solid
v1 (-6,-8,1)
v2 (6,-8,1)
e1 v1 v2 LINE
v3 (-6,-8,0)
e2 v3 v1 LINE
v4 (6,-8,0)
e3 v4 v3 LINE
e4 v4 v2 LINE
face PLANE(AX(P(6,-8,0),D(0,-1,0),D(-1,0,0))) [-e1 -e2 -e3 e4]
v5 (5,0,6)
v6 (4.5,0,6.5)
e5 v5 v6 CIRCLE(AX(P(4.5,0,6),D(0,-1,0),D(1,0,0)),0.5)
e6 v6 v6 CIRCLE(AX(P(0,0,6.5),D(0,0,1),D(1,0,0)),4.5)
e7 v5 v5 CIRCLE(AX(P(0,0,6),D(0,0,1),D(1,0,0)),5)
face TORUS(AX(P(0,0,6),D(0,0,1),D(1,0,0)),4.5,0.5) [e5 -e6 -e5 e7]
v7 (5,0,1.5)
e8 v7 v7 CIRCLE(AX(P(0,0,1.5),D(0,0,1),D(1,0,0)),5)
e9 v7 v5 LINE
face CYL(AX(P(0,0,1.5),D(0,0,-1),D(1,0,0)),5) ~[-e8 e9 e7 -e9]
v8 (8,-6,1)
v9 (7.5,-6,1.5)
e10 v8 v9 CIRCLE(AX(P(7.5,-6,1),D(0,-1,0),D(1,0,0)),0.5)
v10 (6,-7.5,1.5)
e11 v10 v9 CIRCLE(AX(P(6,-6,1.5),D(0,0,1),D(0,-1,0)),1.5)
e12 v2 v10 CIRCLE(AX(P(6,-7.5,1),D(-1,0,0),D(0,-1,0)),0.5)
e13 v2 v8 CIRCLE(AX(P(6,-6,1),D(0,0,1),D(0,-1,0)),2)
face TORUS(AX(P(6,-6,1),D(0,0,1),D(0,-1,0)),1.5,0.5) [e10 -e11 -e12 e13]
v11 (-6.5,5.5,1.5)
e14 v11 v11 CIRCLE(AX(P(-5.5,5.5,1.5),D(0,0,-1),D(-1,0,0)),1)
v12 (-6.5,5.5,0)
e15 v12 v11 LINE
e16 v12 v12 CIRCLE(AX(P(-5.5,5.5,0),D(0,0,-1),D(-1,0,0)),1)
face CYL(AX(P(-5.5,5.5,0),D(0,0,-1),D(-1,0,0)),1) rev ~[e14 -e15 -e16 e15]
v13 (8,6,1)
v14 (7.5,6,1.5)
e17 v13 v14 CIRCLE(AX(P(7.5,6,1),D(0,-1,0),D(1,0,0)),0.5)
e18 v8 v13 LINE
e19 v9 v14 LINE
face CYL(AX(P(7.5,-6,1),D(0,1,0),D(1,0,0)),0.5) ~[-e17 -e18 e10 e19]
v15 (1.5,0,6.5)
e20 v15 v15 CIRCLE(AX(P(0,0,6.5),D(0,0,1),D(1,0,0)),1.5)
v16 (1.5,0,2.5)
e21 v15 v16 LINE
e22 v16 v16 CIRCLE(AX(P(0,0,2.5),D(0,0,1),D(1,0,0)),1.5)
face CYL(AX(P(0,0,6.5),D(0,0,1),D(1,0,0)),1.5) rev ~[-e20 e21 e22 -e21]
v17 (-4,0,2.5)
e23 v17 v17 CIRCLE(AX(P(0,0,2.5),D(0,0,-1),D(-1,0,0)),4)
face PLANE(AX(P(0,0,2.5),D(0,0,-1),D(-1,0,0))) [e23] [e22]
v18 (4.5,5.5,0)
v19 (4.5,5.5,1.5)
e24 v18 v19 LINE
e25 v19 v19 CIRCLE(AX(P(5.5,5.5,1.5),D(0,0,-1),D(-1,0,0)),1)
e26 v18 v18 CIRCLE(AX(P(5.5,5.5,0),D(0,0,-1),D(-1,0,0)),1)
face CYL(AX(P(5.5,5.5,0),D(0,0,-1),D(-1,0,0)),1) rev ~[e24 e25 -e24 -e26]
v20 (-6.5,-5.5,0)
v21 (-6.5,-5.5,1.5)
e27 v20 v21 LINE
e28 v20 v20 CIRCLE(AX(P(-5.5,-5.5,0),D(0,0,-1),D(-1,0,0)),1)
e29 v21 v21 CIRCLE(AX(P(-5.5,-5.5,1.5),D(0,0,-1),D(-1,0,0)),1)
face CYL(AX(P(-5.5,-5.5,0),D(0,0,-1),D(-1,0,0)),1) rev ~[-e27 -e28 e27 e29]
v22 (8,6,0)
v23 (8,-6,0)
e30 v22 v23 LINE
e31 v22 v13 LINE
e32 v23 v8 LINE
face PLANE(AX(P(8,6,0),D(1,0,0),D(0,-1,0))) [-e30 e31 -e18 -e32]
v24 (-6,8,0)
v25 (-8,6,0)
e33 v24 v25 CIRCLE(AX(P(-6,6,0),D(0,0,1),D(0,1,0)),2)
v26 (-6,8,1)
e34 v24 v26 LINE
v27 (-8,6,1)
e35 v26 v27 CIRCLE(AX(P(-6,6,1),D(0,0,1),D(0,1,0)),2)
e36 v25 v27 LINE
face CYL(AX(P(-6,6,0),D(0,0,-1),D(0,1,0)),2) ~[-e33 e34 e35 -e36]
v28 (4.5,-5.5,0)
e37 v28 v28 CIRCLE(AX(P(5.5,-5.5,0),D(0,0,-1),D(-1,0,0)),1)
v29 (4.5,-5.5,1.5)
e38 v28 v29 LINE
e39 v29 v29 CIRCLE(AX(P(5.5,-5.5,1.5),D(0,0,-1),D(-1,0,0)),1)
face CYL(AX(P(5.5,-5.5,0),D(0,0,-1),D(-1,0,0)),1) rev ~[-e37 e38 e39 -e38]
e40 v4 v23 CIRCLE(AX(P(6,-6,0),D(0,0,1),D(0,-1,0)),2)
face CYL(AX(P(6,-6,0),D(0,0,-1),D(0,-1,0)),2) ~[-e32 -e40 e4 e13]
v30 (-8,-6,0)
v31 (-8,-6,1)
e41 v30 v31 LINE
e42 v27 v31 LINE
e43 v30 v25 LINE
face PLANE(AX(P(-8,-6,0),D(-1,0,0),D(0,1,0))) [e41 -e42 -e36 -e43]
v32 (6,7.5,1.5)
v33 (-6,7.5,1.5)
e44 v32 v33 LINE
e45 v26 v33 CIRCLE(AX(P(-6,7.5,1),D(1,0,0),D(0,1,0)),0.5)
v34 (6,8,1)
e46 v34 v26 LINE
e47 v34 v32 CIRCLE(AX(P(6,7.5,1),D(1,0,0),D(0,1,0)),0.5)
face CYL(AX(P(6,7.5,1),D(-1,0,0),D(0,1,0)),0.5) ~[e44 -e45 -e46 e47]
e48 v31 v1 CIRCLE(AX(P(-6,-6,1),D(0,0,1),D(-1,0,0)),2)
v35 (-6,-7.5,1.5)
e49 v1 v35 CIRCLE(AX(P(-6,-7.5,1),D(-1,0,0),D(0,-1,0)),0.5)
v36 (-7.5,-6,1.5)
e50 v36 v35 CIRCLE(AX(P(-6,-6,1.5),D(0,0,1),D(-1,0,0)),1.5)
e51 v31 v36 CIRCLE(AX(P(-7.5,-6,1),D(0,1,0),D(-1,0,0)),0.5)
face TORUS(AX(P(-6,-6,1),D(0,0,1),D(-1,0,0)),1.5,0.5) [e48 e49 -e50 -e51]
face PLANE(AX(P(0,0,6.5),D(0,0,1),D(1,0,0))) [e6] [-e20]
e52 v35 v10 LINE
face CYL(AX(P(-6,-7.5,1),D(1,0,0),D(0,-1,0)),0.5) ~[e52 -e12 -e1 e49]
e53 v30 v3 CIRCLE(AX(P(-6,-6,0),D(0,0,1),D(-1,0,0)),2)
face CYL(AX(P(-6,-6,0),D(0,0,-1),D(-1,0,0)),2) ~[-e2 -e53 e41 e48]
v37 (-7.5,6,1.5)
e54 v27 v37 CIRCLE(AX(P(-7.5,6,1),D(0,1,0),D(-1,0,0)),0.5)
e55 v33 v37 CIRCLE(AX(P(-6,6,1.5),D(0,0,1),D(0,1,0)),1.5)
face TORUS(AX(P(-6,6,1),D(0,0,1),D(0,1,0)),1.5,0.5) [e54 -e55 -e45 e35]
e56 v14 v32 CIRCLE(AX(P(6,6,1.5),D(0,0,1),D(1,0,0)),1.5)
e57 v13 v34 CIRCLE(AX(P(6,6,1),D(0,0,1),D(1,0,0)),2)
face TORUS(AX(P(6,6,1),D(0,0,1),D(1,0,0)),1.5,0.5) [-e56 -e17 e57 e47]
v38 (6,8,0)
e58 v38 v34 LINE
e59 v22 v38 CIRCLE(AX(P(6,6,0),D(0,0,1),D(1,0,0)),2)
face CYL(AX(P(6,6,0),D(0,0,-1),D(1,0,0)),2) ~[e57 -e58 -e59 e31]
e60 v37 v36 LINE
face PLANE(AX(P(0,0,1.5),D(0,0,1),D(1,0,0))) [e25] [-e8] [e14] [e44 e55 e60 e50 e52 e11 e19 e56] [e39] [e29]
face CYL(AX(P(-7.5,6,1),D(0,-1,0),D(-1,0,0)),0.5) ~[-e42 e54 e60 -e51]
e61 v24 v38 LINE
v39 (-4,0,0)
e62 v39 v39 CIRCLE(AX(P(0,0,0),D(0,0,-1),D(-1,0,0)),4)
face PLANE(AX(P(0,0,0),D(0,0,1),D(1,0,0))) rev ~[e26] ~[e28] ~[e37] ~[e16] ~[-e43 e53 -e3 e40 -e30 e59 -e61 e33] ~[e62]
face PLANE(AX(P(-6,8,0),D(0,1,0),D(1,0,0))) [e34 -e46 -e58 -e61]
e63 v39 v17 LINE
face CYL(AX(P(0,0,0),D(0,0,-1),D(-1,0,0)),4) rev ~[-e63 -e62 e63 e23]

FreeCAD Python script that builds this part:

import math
import FreeCAD as App
import Part
import Sketcher


def edges_at(feature, points):
    """Names of the edges that pass closest to the given points."""
    edges = feature.Shape.Edges
    near = lambda p: min(range(len(edges)), key=lambda i: edges[i].distToShape(Part.Vertex(*p))[0])
    return sorted({f"Edge{near(p) + 1}" for p in points})

doc = App.newDocument("Part")
body = doc.addObject("PartDesign::Body", "Body")

# Sketch on XY plane
sketch1 = doc.addObject("Sketcher::SketchObject", "Sketch")
body.addObject(sketch1)
sketch1.AttachmentSupport = (doc.XY_Plane, [""])
sketch1.MapMode = "FlatFace"
sketch1.addGeometry([
    Part.LineSegment(App.Vector(6, 8, 0), App.Vector(-6, 8, 0)),  # 0
    Part.ArcOfCircle(Part.Circle(App.Vector(-6, 6, 0), App.Vector(0, 0, 1), 2), math.radians(90), math.radians(180)),  # 1
    Part.LineSegment(App.Vector(-8, 6, 0), App.Vector(-8, -6, 0)),  # 2
    Part.ArcOfCircle(Part.Circle(App.Vector(-6, -6, 0), App.Vector(0, 0, 1), 2), math.radians(180), math.radians(270)),  # 3
    Part.LineSegment(App.Vector(-6, -8, 0), App.Vector(6, -8, 0)),  # 4
    Part.ArcOfCircle(Part.Circle(App.Vector(6, -6, 0), App.Vector(0, 0, 1), 2), math.radians(-90), math.radians(0)),  # 5
    Part.LineSegment(App.Vector(8, -6, 0), App.Vector(8, 6, 0)),  # 6
    Part.ArcOfCircle(Part.Circle(App.Vector(6, 6, 0), App.Vector(0, 0, 1), 2), math.radians(0), math.radians(90)),  # 7
], False)
sketch1.addConstraint([
    Sketcher.Constraint("Tangent", 0, 2, 1, 1),
    Sketcher.Constraint("Tangent", 1, 2, 2, 1),
    Sketcher.Constraint("Tangent", 2, 2, 3, 1),
    Sketcher.Constraint("Tangent", 3, 2, 4, 1),
    Sketcher.Constraint("Tangent", 4, 2, 5, 1),
    Sketcher.Constraint("Tangent", 5, 2, 6, 1),
    Sketcher.Constraint("Tangent", 6, 2, 7, 1),
    Sketcher.Constraint("Tangent", 7, 2, 0, 1),
    Sketcher.Constraint("Horizontal", 0),
    Sketcher.Constraint("Vertical", 2),
    Sketcher.Constraint("Horizontal", 4),
    Sketcher.Constraint("Vertical", 6),
    Sketcher.Constraint("Equal", 1, 3),
    Sketcher.Constraint("Equal", 3, 5),
    Sketcher.Constraint("Equal", 5, 7),
    Sketcher.Constraint("Symmetric", 1, 3, 5, 3, -1, 1),
    Sketcher.Constraint("Equal", 4, 2),
    Sketcher.Constraint("Radius", 1, 2.0),
    Sketcher.Constraint("DistanceX", 0, 2, 0, 1, 12.0),
])
pad1 = doc.addObject("PartDesign::Pad", "Pad")
body.addObject(pad1)
pad1.Profile = sketch1
pad1.Length = 1.5

# Sketch on XY plane
sketch2 = doc.addObject("Sketcher::SketchObject", "Sketch001")
body.addObject(sketch2)
sketch2.AttachmentSupport = (doc.XY_Plane, [""])
sketch2.MapMode = "FlatFace"
sketch2.AttachmentOffset = App.Placement(App.Vector(0, 0, 1.5), App.Rotation())
sketch2.addGeometry(Part.Circle(App.Vector(0, 0, 0), App.Vector(0, 0, 1), 5), False)
sketch2.addConstraint([
    Sketcher.Constraint("Coincident", 0, 3, -1, 1),
    Sketcher.Constraint("Diameter", 0, 10.0),
])
pad2 = doc.addObject("PartDesign::Pad", "Pad001")
body.addObject(pad2)
pad2.Profile = sketch2
pad2.Length = 5
doc.recompute()

fillet = doc.addObject("PartDesign::Fillet", "Fillet")
body.addObject(fillet)
fillet.Base = (pad2, edges_at(pad2, [
    (-5, 0, 6.5),
    (-7.414, 7.414, 1.5),
    (-8, 0, 1.5),
    (-7.414, -7.414, 1.5),
    (0, -8, 1.5),
    (7.414, -7.414, 1.5),
    (8, 0, 1.5),
    (7.414, 7.414, 1.5),
    (0, 8, 1.5),
]))
fillet.Radius = 0.5

# Sketch on XY plane
sketch3 = doc.addObject("Sketcher::SketchObject", "Sketch002")
body.addObject(sketch3)
sketch3.AttachmentSupport = (doc.XY_Plane, [""])
sketch3.MapMode = "FlatFace"
sketch3.AttachmentOffset = App.Placement(App.Vector(0, 0, 6.5), App.Rotation())
sketch3.addGeometry(Part.Circle(App.Vector(0, 0, 0), App.Vector(0, 0, 1), 1.5), False)
sketch3.addConstraint([
    Sketcher.Constraint("Coincident", 0, 3, -1, 1),
    Sketcher.Constraint("Diameter", 0, 3.0),
])
pocket1 = doc.addObject("PartDesign::Pocket", "Pocket")
body.addObject(pocket1)
pocket1.Profile = sketch3
pocket1.Type = "ThroughAll"

# Sketch on XY plane
sketch4 = doc.addObject("Sketcher::SketchObject", "Sketch003")
body.addObject(sketch4)
sketch4.AttachmentSupport = (doc.XY_Plane, [""])
sketch4.MapMode = "FlatFace"
sketch4.addGeometry([
    Part.Circle(App.Vector(0, 0, 0), App.Vector(0, 0, 1), 4),
    Part.Circle(App.Vector(0, 0, 0), App.Vector(0, 0, 1), 1.5),
], False)
sketch4.addConstraint([
    Sketcher.Constraint("Coincident", 0, 3, -1, 1),
    Sketcher.Constraint("Coincident", 1, 3, -1, 1),
    Sketcher.Constraint("Diameter", 0, 8.0),
    Sketcher.Constraint("Diameter", 1, 3.0),
])
pocket2 = doc.addObject("PartDesign::Pocket", "Pocket001")
body.addObject(pocket2)
pocket2.Profile = sketch4
pocket2.Length = 2.5
pocket2.Reversed = True

# Sketch on XY plane
sketch5 = doc.addObject("Sketcher::SketchObject", "Sketch004")
body.addObject(sketch5)
sketch5.AttachmentSupport = (doc.XY_Plane, [""])
sketch5.MapMode = "FlatFace"
sketch5.addGeometry([
    Part.Circle(App.Vector(5.5, 5.5, 0), App.Vector(0, 0, 1), 1),
    Part.Circle(App.Vector(-5.5, 5.5, 0), App.Vector(0, 0, 1), 1),
    Part.Circle(App.Vector(-5.5, -5.5, 0), App.Vector(0, 0, 1), 1),
    Part.Circle(App.Vector(5.5, -5.5, 0), App.Vector(0, 0, 1), 1),
], False)
sketch5.addConstraint([
    Sketcher.Constraint("Equal", 0, 1),
    Sketcher.Constraint("Equal", 1, 2),
    Sketcher.Constraint("Equal", 2, 3),
    Sketcher.Constraint("Symmetric", 0, 3, 2, 3, -1, 1),
    Sketcher.Constraint("Symmetric", 1, 3, 3, 3, -1, 1),
    Sketcher.Constraint("Symmetric", 0, 3, 1, 3, -2),
    Sketcher.Constraint("Diameter", 0, 2.0),
    Sketcher.Constraint("DistanceX", 1, 3, 0, 3, 11.0),
    Sketcher.Constraint("DistanceY", 2, 3, 1, 3, 11.0),
])
pocket3 = doc.addObject("PartDesign::Pocket", "Pocket002")
body.addObject(pocket3)
pocket3.Profile = sketch5
pocket3.Type = "ThroughAll"
pocket3.Reversed = True

doc.recompute()
